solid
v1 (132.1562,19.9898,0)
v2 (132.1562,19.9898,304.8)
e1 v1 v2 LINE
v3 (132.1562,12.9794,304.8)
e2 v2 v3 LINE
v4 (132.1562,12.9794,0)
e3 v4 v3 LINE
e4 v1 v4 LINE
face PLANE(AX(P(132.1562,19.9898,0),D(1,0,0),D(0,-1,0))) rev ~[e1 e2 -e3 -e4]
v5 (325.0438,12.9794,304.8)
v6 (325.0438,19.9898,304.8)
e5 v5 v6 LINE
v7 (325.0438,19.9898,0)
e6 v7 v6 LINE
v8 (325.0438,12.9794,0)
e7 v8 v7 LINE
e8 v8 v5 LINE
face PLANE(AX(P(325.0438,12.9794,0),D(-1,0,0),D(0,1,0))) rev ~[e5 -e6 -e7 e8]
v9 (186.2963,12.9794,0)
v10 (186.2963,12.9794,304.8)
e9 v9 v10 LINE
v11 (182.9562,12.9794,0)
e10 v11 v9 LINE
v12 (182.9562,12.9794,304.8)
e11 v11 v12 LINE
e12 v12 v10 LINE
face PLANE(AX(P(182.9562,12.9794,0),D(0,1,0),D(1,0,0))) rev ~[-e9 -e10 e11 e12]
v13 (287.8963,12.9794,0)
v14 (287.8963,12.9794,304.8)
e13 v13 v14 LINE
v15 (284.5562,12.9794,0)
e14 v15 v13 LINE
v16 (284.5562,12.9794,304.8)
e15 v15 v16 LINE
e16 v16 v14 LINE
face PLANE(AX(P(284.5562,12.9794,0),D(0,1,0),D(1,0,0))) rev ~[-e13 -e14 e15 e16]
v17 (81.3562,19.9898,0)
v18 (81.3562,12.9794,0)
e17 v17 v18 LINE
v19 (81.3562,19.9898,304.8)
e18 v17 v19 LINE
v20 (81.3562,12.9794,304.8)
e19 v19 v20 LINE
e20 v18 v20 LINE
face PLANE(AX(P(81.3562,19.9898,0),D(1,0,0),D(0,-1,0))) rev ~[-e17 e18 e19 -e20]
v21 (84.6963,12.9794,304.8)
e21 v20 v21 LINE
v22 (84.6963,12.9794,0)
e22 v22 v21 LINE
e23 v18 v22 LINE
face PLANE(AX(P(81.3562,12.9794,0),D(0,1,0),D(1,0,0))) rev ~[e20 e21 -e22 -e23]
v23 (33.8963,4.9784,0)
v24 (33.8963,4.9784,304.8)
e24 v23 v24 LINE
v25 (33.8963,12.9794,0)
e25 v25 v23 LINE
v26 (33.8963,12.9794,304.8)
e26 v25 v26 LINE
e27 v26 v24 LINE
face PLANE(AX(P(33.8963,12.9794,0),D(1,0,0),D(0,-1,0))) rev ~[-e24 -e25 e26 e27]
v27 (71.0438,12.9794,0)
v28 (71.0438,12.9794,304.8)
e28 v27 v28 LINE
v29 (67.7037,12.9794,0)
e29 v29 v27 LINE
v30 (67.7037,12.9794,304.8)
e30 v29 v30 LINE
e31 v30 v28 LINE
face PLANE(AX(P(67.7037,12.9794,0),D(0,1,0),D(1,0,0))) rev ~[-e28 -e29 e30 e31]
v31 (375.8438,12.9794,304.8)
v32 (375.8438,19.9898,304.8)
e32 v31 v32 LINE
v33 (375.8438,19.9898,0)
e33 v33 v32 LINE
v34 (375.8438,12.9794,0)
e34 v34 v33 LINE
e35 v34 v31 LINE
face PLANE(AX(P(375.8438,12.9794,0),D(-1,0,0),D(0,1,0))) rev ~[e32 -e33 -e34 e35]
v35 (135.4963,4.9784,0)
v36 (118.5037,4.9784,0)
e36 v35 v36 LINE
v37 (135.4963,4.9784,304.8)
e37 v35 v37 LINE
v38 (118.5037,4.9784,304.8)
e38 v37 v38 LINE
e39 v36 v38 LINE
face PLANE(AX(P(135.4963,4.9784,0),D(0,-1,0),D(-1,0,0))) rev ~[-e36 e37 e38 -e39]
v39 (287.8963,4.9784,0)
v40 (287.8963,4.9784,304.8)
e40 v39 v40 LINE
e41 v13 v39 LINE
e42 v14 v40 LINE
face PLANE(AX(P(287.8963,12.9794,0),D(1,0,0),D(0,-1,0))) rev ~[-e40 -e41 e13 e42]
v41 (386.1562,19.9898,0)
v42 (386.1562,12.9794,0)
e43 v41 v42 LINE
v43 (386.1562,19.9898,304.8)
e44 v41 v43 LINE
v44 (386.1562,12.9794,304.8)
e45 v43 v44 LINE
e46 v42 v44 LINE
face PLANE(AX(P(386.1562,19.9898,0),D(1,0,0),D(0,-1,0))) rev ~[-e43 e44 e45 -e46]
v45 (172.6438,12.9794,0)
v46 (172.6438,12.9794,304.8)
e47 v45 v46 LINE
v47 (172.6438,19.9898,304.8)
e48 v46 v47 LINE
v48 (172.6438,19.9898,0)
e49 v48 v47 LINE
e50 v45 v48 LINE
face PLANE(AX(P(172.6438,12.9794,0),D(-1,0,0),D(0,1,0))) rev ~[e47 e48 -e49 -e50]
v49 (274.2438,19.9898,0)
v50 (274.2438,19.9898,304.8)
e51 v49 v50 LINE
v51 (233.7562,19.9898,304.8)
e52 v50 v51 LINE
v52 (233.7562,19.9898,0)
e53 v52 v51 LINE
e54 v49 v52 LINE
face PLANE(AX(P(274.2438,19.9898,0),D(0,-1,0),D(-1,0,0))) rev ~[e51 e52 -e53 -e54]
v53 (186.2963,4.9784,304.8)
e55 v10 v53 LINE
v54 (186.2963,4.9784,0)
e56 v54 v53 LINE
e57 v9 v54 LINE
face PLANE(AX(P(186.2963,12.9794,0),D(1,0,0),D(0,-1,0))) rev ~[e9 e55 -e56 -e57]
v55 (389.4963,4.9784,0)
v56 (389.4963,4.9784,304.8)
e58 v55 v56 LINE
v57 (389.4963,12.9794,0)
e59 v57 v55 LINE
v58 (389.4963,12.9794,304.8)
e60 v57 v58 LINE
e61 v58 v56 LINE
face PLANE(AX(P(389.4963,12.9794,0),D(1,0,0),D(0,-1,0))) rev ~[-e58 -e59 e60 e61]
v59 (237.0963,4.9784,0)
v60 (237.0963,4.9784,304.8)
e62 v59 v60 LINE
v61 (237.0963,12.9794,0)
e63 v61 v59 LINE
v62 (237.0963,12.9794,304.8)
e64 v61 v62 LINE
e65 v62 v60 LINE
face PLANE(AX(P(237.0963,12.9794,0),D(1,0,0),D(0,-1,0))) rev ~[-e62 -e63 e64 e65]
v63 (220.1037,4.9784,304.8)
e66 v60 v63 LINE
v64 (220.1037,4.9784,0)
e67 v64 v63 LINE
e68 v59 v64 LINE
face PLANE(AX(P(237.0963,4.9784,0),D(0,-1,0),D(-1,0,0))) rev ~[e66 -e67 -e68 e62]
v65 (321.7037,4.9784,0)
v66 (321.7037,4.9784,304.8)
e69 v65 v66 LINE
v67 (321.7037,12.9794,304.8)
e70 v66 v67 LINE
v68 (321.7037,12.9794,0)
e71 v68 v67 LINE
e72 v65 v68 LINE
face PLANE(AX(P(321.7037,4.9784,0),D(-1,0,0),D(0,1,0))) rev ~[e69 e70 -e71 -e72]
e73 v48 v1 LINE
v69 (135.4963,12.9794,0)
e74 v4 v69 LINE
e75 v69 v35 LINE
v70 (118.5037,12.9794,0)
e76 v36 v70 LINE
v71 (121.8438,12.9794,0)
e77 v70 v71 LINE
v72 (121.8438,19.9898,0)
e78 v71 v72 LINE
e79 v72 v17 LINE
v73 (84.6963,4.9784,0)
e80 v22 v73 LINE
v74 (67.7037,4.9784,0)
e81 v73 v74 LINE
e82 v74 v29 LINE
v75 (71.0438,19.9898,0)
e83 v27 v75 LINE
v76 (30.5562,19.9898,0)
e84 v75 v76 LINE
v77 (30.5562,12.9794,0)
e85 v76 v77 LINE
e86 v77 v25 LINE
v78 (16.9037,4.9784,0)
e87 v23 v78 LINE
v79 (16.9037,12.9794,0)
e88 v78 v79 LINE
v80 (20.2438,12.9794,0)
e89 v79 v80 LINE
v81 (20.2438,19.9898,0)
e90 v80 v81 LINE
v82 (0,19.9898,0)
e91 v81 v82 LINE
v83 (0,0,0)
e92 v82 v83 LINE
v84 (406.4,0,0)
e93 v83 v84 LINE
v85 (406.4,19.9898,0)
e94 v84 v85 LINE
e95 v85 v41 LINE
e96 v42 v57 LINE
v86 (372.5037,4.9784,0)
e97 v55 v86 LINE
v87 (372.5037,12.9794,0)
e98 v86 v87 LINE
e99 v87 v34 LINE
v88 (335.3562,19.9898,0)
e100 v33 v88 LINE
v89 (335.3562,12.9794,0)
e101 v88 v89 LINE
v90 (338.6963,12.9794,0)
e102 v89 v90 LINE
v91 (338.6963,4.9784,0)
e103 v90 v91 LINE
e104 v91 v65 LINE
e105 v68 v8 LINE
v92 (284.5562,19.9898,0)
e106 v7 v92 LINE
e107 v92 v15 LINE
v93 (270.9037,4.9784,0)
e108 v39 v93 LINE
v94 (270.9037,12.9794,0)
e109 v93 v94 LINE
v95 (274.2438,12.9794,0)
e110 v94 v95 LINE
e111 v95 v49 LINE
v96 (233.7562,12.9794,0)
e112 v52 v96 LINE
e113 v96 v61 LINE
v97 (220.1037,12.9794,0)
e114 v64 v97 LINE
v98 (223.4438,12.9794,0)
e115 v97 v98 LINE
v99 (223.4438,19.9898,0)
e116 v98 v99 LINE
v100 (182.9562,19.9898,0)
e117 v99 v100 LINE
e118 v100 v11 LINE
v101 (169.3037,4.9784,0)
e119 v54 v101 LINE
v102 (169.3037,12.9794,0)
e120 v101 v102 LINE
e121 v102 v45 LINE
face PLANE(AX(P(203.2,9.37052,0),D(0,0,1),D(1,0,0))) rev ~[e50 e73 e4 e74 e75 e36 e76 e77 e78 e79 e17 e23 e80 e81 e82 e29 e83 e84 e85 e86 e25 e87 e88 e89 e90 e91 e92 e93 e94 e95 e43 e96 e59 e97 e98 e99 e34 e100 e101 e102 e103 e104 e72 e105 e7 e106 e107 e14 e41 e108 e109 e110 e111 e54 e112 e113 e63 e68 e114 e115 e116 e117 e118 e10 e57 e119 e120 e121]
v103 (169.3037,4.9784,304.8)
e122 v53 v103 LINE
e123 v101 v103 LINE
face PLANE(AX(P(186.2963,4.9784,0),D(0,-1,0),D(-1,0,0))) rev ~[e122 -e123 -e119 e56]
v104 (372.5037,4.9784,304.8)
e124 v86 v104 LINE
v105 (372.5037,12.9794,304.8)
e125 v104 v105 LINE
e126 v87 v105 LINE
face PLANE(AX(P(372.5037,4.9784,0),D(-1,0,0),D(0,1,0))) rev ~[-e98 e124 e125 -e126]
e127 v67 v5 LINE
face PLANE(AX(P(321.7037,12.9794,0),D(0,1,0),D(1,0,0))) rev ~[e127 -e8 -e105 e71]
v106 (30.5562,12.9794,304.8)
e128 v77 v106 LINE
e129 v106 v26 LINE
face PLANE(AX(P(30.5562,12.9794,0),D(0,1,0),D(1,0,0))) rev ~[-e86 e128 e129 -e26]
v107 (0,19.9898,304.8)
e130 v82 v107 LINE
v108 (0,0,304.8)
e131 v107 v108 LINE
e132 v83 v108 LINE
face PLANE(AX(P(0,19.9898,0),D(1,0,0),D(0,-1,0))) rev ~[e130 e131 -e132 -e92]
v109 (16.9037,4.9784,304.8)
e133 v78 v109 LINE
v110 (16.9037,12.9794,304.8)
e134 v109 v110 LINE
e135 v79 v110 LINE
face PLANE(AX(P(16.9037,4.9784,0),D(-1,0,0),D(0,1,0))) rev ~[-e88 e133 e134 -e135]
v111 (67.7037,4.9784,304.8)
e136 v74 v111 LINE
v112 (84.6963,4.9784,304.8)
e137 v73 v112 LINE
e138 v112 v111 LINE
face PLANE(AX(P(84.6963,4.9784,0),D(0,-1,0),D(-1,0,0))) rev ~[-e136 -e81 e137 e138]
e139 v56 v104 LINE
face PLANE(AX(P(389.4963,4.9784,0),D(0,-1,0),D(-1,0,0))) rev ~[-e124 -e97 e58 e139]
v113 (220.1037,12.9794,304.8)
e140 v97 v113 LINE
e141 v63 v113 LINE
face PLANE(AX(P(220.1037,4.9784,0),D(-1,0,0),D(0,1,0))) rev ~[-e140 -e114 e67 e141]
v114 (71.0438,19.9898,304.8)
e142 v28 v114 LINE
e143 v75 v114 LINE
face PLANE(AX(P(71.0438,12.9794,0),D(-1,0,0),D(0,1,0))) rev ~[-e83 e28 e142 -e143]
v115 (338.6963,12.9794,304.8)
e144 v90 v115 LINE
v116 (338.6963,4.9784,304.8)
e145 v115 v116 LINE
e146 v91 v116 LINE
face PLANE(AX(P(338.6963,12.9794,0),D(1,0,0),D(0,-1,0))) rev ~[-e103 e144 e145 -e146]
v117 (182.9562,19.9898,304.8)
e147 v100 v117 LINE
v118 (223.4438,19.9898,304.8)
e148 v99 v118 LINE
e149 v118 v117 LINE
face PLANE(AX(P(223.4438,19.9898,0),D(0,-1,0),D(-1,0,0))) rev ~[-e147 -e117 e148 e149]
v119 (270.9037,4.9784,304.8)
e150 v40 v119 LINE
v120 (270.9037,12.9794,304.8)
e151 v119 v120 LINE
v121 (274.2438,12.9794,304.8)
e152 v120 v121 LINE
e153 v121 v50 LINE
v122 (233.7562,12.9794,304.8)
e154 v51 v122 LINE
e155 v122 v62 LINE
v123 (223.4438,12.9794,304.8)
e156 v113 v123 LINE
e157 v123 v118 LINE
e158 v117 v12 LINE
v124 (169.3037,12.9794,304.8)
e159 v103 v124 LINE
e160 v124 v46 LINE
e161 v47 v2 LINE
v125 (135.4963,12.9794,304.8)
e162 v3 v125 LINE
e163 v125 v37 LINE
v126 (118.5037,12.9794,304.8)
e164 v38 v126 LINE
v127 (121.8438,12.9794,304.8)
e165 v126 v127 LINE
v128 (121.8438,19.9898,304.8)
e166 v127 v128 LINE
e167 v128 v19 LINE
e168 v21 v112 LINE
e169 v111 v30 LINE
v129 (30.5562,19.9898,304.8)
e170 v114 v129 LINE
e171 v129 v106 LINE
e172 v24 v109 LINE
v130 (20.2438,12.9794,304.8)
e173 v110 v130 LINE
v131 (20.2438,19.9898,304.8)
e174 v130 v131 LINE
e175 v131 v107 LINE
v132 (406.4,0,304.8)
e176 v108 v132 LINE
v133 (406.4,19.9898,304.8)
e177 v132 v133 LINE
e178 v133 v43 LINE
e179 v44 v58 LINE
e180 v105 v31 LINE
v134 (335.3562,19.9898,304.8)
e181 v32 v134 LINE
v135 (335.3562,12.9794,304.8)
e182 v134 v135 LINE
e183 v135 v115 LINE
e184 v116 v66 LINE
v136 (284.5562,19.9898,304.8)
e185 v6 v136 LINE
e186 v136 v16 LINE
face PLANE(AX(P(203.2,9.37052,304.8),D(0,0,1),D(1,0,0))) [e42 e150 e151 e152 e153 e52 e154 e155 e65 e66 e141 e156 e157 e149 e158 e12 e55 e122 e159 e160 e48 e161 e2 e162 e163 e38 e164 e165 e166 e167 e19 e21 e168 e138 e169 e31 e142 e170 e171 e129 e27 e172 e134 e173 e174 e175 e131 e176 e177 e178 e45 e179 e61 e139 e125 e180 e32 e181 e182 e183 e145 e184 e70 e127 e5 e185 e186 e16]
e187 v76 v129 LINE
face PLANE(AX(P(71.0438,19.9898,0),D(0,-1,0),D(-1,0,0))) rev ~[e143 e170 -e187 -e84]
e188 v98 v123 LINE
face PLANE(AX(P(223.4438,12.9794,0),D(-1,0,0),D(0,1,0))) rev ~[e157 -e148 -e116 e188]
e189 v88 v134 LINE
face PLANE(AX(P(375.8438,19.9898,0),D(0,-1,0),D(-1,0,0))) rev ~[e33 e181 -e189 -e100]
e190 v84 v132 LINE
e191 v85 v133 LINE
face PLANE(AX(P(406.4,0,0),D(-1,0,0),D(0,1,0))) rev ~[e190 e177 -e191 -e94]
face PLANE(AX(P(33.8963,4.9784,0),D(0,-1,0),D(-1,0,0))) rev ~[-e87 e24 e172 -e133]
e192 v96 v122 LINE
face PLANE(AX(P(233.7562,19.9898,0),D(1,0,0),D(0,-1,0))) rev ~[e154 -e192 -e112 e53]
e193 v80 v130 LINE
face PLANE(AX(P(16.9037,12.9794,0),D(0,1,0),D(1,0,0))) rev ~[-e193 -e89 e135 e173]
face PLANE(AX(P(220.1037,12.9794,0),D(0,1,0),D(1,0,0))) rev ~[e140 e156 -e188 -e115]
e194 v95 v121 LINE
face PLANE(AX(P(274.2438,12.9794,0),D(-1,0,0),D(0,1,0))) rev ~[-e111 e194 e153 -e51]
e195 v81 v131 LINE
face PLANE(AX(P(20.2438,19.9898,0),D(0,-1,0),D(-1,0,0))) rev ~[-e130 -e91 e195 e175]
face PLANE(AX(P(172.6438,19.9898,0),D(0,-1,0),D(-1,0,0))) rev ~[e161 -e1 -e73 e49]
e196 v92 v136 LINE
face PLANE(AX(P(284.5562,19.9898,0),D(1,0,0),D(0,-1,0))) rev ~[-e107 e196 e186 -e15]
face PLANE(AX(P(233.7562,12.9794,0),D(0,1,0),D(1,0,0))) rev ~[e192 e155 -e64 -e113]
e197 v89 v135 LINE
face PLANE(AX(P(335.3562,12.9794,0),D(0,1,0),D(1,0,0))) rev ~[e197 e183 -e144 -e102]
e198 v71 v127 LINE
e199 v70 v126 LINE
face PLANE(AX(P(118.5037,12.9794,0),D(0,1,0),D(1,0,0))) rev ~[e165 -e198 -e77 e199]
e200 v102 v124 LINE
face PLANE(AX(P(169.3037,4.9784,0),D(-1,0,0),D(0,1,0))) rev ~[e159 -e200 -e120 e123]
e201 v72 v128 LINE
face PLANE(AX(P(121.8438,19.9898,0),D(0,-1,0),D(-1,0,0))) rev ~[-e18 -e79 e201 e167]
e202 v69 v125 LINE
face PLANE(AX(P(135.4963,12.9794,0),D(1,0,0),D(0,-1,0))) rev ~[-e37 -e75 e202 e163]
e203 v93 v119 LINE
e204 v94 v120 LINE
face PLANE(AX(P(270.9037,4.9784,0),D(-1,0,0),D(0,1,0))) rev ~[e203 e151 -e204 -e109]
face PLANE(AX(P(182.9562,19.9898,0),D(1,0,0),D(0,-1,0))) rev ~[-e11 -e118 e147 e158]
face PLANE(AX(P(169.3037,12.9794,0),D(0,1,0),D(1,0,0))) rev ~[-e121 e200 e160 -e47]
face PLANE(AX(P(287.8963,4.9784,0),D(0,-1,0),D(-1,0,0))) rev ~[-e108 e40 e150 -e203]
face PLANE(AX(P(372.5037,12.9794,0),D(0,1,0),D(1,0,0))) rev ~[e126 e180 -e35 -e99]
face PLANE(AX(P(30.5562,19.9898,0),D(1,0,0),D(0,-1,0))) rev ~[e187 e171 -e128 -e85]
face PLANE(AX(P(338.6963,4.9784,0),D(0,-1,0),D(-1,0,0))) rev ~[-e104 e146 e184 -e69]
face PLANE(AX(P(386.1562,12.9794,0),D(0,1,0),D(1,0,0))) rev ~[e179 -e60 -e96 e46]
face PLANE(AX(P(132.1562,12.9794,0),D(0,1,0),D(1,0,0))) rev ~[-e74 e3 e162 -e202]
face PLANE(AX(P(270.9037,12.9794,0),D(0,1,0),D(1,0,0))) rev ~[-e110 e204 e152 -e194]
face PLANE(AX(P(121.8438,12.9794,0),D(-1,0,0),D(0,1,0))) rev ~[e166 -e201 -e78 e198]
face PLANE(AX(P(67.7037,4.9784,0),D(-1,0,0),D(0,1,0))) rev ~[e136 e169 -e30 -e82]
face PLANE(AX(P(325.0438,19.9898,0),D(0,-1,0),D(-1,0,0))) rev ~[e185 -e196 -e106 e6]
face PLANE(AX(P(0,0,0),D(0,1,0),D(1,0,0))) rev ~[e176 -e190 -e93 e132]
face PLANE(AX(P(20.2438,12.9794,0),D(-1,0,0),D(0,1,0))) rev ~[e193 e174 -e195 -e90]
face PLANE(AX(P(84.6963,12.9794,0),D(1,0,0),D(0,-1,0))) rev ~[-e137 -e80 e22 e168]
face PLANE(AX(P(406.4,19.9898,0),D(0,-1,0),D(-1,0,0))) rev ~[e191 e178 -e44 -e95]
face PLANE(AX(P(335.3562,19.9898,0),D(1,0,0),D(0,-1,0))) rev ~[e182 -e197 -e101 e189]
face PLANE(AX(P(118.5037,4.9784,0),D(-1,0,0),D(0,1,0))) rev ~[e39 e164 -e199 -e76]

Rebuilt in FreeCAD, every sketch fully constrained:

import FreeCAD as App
import Part
import Sketcher

V = App.Vector
Q = App.Units.Quantity


def add_polygon(sketch, points):
    """Adds a closed chain of lines whose ends are joined by coincident constraints."""
    first, n = sketch.GeometryCount, len(points)
    for a, b in zip(points, points[1:] + points[:1]):
        sketch.addGeometry(Part.LineSegment(App.Vector(*a, 0), App.Vector(*b, 0)), False)
    for i in range(n):
        sketch.addConstraint(Sketcher.Constraint("Coincident", first + i, 2, first + (i + 1) % n, 1))

doc = App.newDocument("Part")
body = doc.addObject("PartDesign::Body", "Body")

sketch1 = doc.addObject("Sketcher::SketchObject", "Sketch")
body.addObject(sketch1)
sketch1.AttachmentSupport = (doc.XY_Plane, [""])
sketch1.MapMode = "FlatFace"
add_polygon(sketch1, [(30.6, 13), (33.9, 13), (33.9, 5), (16.9, 5), (16.9, 13), (20.2, 13), (20.2, 20), (0, 20), (0, 0), (406.4, 0), (406.4, 20), (386.2, 20), (386.2, 13), (389.5, 13), (389.5, 5), (372.5, 5), (372.5, 13), (375.8, 13), (375.8, 20), (335.4, 20), (335.4, 13), (338.7, 13), (338.7, 5), (321.7, 5), (321.7, 13), (325, 13), (325, 20), (284.6, 20), (284.6, 13), (287.9, 13), (287.9, 5), (270.9, 5), (270.9, 13), (274.2, 13), (274.2, 20), (233.8, 20), (233.8, 13), (237.1, 13), (237.1, 5), (220.1, 5), (220.1, 13), (223.4, 13), (223.4, 20), (183, 20), (183, 13), (186.3, 13), (186.3, 5), (169.3, 5), (169.3, 13), (172.6, 13), (172.6, 20), (132.2, 20), (132.2, 13), (135.5, 13), (135.5, 5), (118.5, 5), (118.5, 13), (121.8, 13), (121.8, 20), (81.4, 20), (81.4, 13), (84.7, 13), (84.7, 5), (67.7, 5), (67.7, 13), (71, 13), (71, 20), (30.6, 20)])
sketch1.addConstraint([
    Sketcher.Constraint("Horizontal", 0),
    Sketcher.Constraint("Vertical", 1),
    Sketcher.Constraint("Horizontal", 2),
    Sketcher.Constraint("Vertical", 3),
    Sketcher.Constraint("Horizontal", 4),
    Sketcher.Constraint("Vertical", 5),
    Sketcher.Constraint("Horizontal", 6),
    Sketcher.Constraint("Vertical", 7),
    Sketcher.Constraint("Horizontal", 8),
    Sketcher.Constraint("Vertical", 9),
    Sketcher.Constraint("Horizontal", 10),
    Sketcher.Constraint("Vertical", 11),
    Sketcher.Constraint("Horizontal", 12),
    Sketcher.Constraint("Vertical", 13),
    Sketcher.Constraint("Horizontal", 14),
    Sketcher.Constraint("Vertical", 15),
    Sketcher.Constraint("Horizontal", 16),
    Sketcher.Constraint("Vertical", 17),
    Sketcher.Constraint("Horizontal", 18),
    Sketcher.Constraint("Vertical", 19),
    Sketcher.Constraint("Horizontal", 20),
    Sketcher.Constraint("Vertical", 21),
    Sketcher.Constraint("Horizontal", 22),
    Sketcher.Constraint("Vertical", 23),
    Sketcher.Constraint("Horizontal", 24),
    Sketcher.Constraint("Vertical", 25),
    Sketcher.Constraint("Horizontal", 26),
    Sketcher.Constraint("Vertical", 27),
    Sketcher.Constraint("Horizontal", 28),
    Sketcher.Constraint("Vertical", 29),
    Sketcher.Constraint("Horizontal", 30),
    Sketcher.Constraint("Vertical", 31),
    Sketcher.Constraint("Horizontal", 32),
    Sketcher.Constraint("Vertical", 33),
    Sketcher.Constraint("Horizontal", 34),
    Sketcher.Constraint("Vertical", 35),
    Sketcher.Constraint("Horizontal", 36),
    Sketcher.Constraint("Vertical", 37),
    Sketcher.Constraint("Horizontal", 38),
    Sketcher.Constraint("Vertical", 39),
    Sketcher.Constraint("Horizontal", 40),
    Sketcher.Constraint("Vertical", 41),
    Sketcher.Constraint("Horizontal", 42),
    Sketcher.Constraint("Vertical", 43),
    Sketcher.Constraint("Horizontal", 44),
    Sketcher.Constraint("Vertical", 45),
    Sketcher.Constraint("Horizontal", 46),
    Sketcher.Constraint("Vertical", 47),
    Sketcher.Constraint("Horizontal", 48),
    Sketcher.Constraint("Vertical", 49),
    Sketcher.Constraint("Horizontal", 50),
    Sketcher.Constraint("Vertical", 51),
    Sketcher.Constraint("Horizontal", 52),
    Sketcher.Constraint("Vertical", 53),
    Sketcher.Constraint("Horizontal", 54),
    Sketcher.Constraint("Vertical", 55),
    Sketcher.Constraint("Horizontal", 56),
    Sketcher.Constraint("Vertical", 57),
    Sketcher.Constraint("Horizontal", 58),
    Sketcher.Constraint("Vertical", 59),
    Sketcher.Constraint("Horizontal", 60),
    Sketcher.Constraint("Vertical", 61),
    Sketcher.Constraint("Horizontal", 62),
    Sketcher.Constraint("Vertical", 63),
    Sketcher.Constraint("Horizontal", 64),
    Sketcher.Constraint("Vertical", 65),
    Sketcher.Constraint("Horizontal", 66),
    Sketcher.Constraint("Vertical", 67),
    Sketcher.Constraint("Coincident", 7, 2, -1, 1),
    Sketcher.Constraint("Horizontal", 0, 2, 3, 2),
    Sketcher.Constraint("Horizontal", 6, 2, 9, 2),
    Sketcher.Constraint("Horizontal", 4, 2, 11, 2),
    Sketcher.Constraint("Horizontal", 2, 2, 13, 2),
    Sketcher.Constraint("Horizontal", 12, 2, 15, 2),
    Sketcher.Constraint("Horizontal", 10, 2, 17, 2),
    Sketcher.Constraint("Horizontal", 16, 2, 19, 2),
    Sketcher.Constraint("Horizontal", 14, 2, 21, 2),
    Sketcher.Constraint("Horizontal", 20, 2, 23, 2),
    Sketcher.Constraint("Horizontal", 18, 2, 25, 2),
    Sketcher.Constraint("Horizontal", 24, 2, 27, 2),
    Sketcher.Constraint("Horizontal", 22, 2, 29, 2),
    Sketcher.Constraint("Horizontal", 28, 2, 31, 2),
    Sketcher.Constraint("Horizontal", 26, 2, 33, 2),
    Sketcher.Constraint("Horizontal", 32, 2, 35, 2),
    Sketcher.Constraint("Horizontal", 30, 2, 37, 2),
    Sketcher.Constraint("Horizontal", 36, 2, 39, 2),
    Sketcher.Constraint("Horizontal", 34, 2, 41, 2),
    Sketcher.Constraint("Horizontal", 40, 2, 43, 2),
    Sketcher.Constraint("Horizontal", 38, 2, 45, 2),
    Sketcher.Constraint("Horizontal", 44, 2, 47, 2),
    Sketcher.Constraint("Horizontal", 42, 2, 49, 2),
    Sketcher.Constraint("Horizontal", 48, 2, 51, 2),
    Sketcher.Constraint("Horizontal", 46, 2, 53, 2),
    Sketcher.Constraint("Horizontal", 52, 2, 55, 2),
    Sketcher.Constraint("Horizontal", 50, 2, 57, 2),
    Sketcher.Constraint("Horizontal", 56, 2, 59, 2),
    Sketcher.Constraint("Horizontal", 54, 2, 61, 2),
    Sketcher.Constraint("Horizontal", 60, 2, 63, 2),
    Sketcher.Constraint("Horizontal", 58, 2, 65, 2),
    Sketcher.Constraint("Equal", 0, 4),
    Sketcher.Constraint("Equal", 6, 10),
    Sketcher.Constraint("Equal", 4, 12),
    Sketcher.Constraint("Equal", 2, 14),
    Sketcher.Constraint("Equal", 12, 16),
    Sketcher.Constraint("Equal", 16, 20),
    Sketcher.Constraint("Equal", 14, 22),
    Sketcher.Constraint("Equal", 20, 24),
    Sketcher.Constraint("Equal", 18, 26),
    Sketcher.Constraint("Equal", 24, 28),
    Sketcher.Constraint("Equal", 22, 30),
    Sketcher.Constraint("Equal", 28, 32),
    Sketcher.Constraint("Equal", 26, 34),
    Sketcher.Constraint("Equal", 32, 36),
    Sketcher.Constraint("Equal", 30, 38),
    Sketcher.Constraint("Equal", 36, 40),
    Sketcher.Constraint("Equal", 34, 42),
    Sketcher.Constraint("Equal", 40, 44),
    Sketcher.Constraint("Equal", 38, 46),
    Sketcher.Constraint("Equal", 44, 48),
    Sketcher.Constraint("Equal", 42, 50),
    Sketcher.Constraint("Equal", 48, 52),
    Sketcher.Constraint("Equal", 46, 54),
    Sketcher.Constraint("Equal", 52, 56),
    Sketcher.Constraint("Equal", 50, 58),
    Sketcher.Constraint("Equal", 56, 60),
    Sketcher.Constraint("Equal", 54, 62),
    Sketcher.Constraint("Equal", 60, 64),
    Sketcher.Constraint("Equal", 58, 66),
    Sketcher.Constraint("DistanceX", 8, 1, 8, 2, Q("16 in")),
    Sketcher.Constraint("DistanceX", 2, 2, 2, 1, Q("0.669 in")),
    Sketcher.Constraint("DistanceX", 6, 2, 6, 1, Q("0.797 in")),
    Sketcher.Constraint("DistanceX", 18, 2, 18, 1, Q("1.594 in")),
    Sketcher.Constraint("DistanceY", 1, 2, 1, 1, Q("0.315 in")),
    Sketcher.Constraint("DistanceY", 5, 1, 5, 2, Q("0.276 in")),
    Sketcher.Constraint("DistanceY", 7, 2, 7, 1, Q("0.787 in")),
])
pad1 = doc.addObject("PartDesign::Pad", "Pad")
body.addObject(pad1)
pad1.Profile = sketch1
pad1.Length = Q("12 in")

doc.recompute()
